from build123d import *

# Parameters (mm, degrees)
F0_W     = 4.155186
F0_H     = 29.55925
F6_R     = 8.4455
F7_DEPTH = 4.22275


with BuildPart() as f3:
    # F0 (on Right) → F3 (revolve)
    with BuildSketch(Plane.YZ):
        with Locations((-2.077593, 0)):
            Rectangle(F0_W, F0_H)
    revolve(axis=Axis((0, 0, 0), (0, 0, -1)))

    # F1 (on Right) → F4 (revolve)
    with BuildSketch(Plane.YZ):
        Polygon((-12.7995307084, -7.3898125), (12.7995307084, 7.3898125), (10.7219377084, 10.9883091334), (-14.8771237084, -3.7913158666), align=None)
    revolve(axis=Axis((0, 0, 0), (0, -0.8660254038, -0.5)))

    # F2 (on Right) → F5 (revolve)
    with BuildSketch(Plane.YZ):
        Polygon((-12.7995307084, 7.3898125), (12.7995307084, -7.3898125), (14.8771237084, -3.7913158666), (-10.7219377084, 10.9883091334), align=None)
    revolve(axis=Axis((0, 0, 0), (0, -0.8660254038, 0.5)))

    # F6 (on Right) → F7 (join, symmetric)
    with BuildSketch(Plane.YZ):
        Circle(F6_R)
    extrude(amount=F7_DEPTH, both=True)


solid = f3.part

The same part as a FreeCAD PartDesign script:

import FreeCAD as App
import Part
import Sketcher
Q = App.Units.Quantity

doc = App.newDocument("Part")
body = doc.addObject("PartDesign::Body", "Body")

# Sketch on YZ plane
sketch1 = body.newObject("Sketcher::SketchObject", "Sketch")
sketch1.AttachmentSupport = (doc.getObject("YZ_Plane"), [""])
sketch1.MapMode = "FlatFace"
sketch1.addGeometry(Part.LineSegment(App.Vector(-4.2, 14.8, 0), App.Vector(-4.2, -14.8, 0)), False)
sketch1.addGeometry(Part.LineSegment(App.Vector(-4.2, -14.8, 0), App.Vector(0, -14.8, 0)), False)
sketch1.addGeometry(Part.LineSegment(App.Vector(0, -14.8, 0), App.Vector(0, 14.8, 0)), False)
sketch1.addGeometry(Part.LineSegment(App.Vector(0, 14.8, 0), App.Vector(-4.2, 14.8, 0)), False)
sketch1.addConstraint(Sketcher.Constraint("Coincident", 0, 2, 1, 1))
sketch1.addConstraint(Sketcher.Constraint("Coincident", 1, 2, 2, 1))
sketch1.addConstraint(Sketcher.Constraint("Coincident", 2, 2, 3, 1))
sketch1.addConstraint(Sketcher.Constraint("Coincident", 3, 2, 0, 1))
sketch1.addConstraint(Sketcher.Constraint("Vertical", 0))
sketch1.addConstraint(Sketcher.Constraint("Horizontal", 1))
sketch1.addConstraint(Sketcher.Constraint("Vertical", 2))
sketch1.addConstraint(Sketcher.Constraint("Horizontal", 3))
sketch1.addConstraint(Sketcher.Constraint("Symmetric", 1, 2, 2, 2, -1, 1))
sketch1.addConstraint(Sketcher.Constraint("DistanceY", 0, 2, 0, 1, Q("29.55925 mm")))
sketch1.addConstraint(Sketcher.Constraint("DistanceX", 1, 1, 1, 2, Q("4.155186 mm")))
revolution = body.newObject("PartDesign::Revolution", "Revolution")
revolution.Profile = sketch1
revolution.ReferenceAxis = (sketch1, ["V_Axis"])
revolution.Angle = 360

# Sketch on YZ plane
sketch2 = body.newObject("Sketcher::SketchObject", "Sketch001")
sketch2.AttachmentSupport = (doc.getObject("YZ_Plane"), [""])
sketch2.MapMode = "FlatFace"
sketch2.addGeometry(Part.LineSegment(App.Vector(-12.8, -7.4, 0), App.Vector(12.8, 7.4, 0)), False)
sketch2.addGeometry(Part.LineSegment(App.Vector(12.8, 7.4, 0), App.Vector(10.7, 11, 0)), False)
sketch2.addGeometry(Part.LineSegment(App.Vector(10.7, 11, 0), App.Vector(-14.9, -3.8, 0)), False)
sketch2.addGeometry(Part.LineSegment(App.Vector(-14.9, -3.8, 0), App.Vector(-12.8, -7.4, 0)), False)
sketch2.addGeometry(Part.LineSegment(App.Vector(12.8, 7.4, 0), App.Vector(-12.8, -7.4, 0)), True)  # axis
sketch2.addConstraint(Sketcher.Constraint("Coincident", 0, 2, 1, 1))
sketch2.addConstraint(Sketcher.Constraint("Coincident", 1, 2, 2, 1))
sketch2.addConstraint(Sketcher.Constraint("Coincident", 2, 2, 3, 1))
sketch2.addConstraint(Sketcher.Constraint("Coincident", 3, 2, 0, 1))
sketch2.addConstraint(Sketcher.Constraint("Coincident", 4, 1, 0, 2))
sketch2.addConstraint(Sketcher.Constraint("Coincident", 4, 2, 3, 2))
sketch2.addConstraint(Sketcher.Constraint("Symmetric", 0, 2, 3, 2, -1, 1))
sketch2.addConstraint(Sketcher.Constraint("Perpendicular", 0, 1))
sketch2.addConstraint(Sketcher.Constraint("Perpendicular", 1, 2))
sketch2.addConstraint(Sketcher.Constraint("Perpendicular", 2, 3))
sketch2.addConstraint(Sketcher.Constraint("Angle", 0, Q("30 deg")))
sketch2.addConstraint(Sketcher.Constraint("Distance", 0, Q("29.55925 mm")))
sketch2.addConstraint(Sketcher.Constraint("DistanceY", -1, 1, 1, 2, Q("10.988309 mm")))
revolution2 = body.newObject("PartDesign::Revolution", "Revolution001")
revolution2.Profile = sketch2
revolution2.ReferenceAxis = (sketch2, ["Axis0"])
revolution2.Angle = 360

# Sketch on YZ plane
sketch3 = body.newObject("Sketcher::SketchObject", "Sketch002")
sketch3.AttachmentSupport = (doc.getObject("YZ_Plane"), [""])
sketch3.MapMode = "FlatFace"
sketch3.addGeometry(Part.LineSegment(App.Vector(-12.8, 7.4, 0), App.Vector(12.8, -7.4, 0)), False)
sketch3.addGeometry(Part.LineSegment(App.Vector(12.8, -7.4, 0), App.Vector(14.9, -3.8, 0)), False)
sketch3.addGeometry(Part.LineSegment(App.Vector(14.9, -3.8, 0), App.Vector(-10.7, 11, 0)), False)
sketch3.addGeometry(Part.LineSegment(App.Vector(-10.7, 11, 0), App.Vector(-12.8, 7.4, 0)), False)
sketch3.addGeometry(Part.LineSegment(App.Vector(12.8, -7.4, 0), App.Vector(-12.8, 7.4, 0)), True)  # axis
sketch3.addConstraint(Sketcher.Constraint("Coincident", 0, 2, 1, 1))
sketch3.addConstraint(Sketcher.Constraint("Coincident", 1, 2, 2, 1))
sketch3.addConstraint(Sketcher.Constraint("Coincident", 2, 2, 3, 1))
sketch3.addConstraint(Sketcher.Constraint("Coincident", 3, 2, 0, 1))
sketch3.addConstraint(Sketcher.Constraint("Coincident", 4, 1, 0, 2))
sketch3.addConstraint(Sketcher.Constraint("Coincident", 4, 2, 3, 2))
sketch3.addConstraint(Sketcher.Constraint("Symmetric", 0, 2, 3, 2, -1, 1))
sketch3.addConstraint(Sketcher.Constraint("Perpendicular", 0, 1))
sketch3.addConstraint(Sketcher.Constraint("Perpendicular", 1, 2))
sketch3.addConstraint(Sketcher.Constraint("Perpendicular", 2, 3))
sketch3.addConstraint(Sketcher.Constraint("Angle", 0, Q("-30 deg")))
sketch3.addConstraint(Sketcher.Constraint("Distance", 0, Q("29.55925 mm")))
sketch3.addConstraint(Sketcher.Constraint("DistanceY", -1, 1, 2, 2, Q("10.988309 mm")))
revolution3 = body.newObject("PartDesign::Revolution", "Revolution002")
revolution3.Profile = sketch3
revolution3.ReferenceAxis = (sketch3, ["Axis0"])
revolution3.Angle = 360

# Sketch on YZ plane
sketch4 = body.newObject("Sketcher::SketchObject", "Sketch003")
sketch4.AttachmentSupport = (doc.getObject("YZ_Plane"), [""])
sketch4.MapMode = "FlatFace"
sketch4.addGeometry(Part.Circle(App.Vector(0, 0, 0), App.Vector(0, 0, 1), 8), False)
sketch4.addConstraint(Sketcher.Constraint("Coincident", 0, 3, -1, 1))
sketch4.addConstraint(Sketcher.Constraint("Diameter", 0, Q("0.665 in")))
pad1 = body.newObject("PartDesign::Pad", "Pad")
pad1.Profile = sketch4
pad1.Length = Q("0.3325 in")
pad1.Midplane = True

doc.recompute()
